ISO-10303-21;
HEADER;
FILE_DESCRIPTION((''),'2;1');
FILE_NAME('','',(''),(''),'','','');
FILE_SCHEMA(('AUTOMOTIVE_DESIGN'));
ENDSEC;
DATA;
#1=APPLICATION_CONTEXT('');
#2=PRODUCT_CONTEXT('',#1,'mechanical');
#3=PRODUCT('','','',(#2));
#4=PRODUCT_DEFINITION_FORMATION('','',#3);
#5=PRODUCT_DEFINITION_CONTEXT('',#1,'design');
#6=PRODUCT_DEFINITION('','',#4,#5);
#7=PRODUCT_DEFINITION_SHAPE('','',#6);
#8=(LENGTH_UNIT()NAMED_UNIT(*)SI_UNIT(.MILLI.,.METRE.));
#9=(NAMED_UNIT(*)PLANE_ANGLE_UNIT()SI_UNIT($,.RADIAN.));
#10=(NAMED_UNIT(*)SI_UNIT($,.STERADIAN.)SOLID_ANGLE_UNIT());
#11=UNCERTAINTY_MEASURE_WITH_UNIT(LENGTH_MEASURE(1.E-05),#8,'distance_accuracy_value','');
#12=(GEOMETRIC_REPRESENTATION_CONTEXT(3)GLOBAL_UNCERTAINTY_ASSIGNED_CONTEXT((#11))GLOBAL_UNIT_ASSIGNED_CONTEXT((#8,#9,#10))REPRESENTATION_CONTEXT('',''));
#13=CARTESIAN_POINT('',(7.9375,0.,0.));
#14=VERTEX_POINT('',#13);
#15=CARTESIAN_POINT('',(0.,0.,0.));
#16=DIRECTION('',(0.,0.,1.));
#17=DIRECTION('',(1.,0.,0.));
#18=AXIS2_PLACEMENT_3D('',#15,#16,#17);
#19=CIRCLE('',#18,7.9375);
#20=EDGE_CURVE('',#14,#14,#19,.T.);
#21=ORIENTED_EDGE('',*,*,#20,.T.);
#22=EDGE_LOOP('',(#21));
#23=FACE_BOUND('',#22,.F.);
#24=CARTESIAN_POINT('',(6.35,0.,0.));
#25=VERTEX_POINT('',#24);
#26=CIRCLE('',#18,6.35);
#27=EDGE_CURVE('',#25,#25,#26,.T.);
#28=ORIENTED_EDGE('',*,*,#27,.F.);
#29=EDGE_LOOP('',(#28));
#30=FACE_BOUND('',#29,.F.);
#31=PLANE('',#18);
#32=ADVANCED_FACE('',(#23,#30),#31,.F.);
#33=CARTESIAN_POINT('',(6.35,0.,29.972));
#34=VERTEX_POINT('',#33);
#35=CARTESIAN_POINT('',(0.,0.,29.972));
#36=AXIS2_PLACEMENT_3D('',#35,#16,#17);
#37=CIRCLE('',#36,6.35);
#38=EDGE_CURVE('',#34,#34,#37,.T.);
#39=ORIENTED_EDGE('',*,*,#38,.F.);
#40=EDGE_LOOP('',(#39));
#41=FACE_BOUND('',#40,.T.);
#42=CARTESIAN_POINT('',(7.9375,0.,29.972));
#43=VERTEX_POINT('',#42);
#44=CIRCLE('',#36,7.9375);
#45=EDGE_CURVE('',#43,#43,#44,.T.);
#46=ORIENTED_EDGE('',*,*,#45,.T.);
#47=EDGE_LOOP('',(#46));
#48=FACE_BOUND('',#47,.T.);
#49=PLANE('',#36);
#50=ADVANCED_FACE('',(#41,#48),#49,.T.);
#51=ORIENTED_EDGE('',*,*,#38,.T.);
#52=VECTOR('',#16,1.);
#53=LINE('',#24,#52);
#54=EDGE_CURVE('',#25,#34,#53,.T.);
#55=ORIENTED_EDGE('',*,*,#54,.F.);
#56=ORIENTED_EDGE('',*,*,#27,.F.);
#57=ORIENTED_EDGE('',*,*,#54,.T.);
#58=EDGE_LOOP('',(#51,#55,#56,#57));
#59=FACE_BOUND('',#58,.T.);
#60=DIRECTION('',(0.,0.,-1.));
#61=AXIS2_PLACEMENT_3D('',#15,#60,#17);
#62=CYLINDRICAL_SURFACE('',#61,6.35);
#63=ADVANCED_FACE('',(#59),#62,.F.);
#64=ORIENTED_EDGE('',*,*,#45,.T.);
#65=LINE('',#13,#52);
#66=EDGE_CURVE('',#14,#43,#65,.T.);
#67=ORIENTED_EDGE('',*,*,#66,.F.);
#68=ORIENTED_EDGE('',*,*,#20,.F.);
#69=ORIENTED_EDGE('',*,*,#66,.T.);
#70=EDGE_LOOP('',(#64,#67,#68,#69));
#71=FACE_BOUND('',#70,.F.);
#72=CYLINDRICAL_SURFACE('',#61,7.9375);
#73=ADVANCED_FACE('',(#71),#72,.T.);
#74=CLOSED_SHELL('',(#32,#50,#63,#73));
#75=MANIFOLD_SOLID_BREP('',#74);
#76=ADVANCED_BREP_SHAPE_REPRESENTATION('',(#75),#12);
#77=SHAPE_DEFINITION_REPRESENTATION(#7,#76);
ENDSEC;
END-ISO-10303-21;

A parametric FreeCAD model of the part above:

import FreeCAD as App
import Part
import Sketcher

V = App.Vector
Q = App.Units.Quantity

doc = App.newDocument("Part")
params = doc.addObject("Spreadsheet::Sheet", "Params")
for row, (alias, value) in enumerate([
    ("sketch1_diameter", "0.5 in"),
    ("sketch1_diameter2", "0.625 in"),
    ("pad1_length", "1.18 in"),
], start=1):
    params.set(f"A{row}", alias)
    params.set(f"B{row}", "=" + value)
    params.setAlias(f"B{row}", alias)

body = doc.addObject("PartDesign::Body", "Body")

# Sketch on XY plane
sketch1 = doc.addObject("Sketcher::SketchObject", "Sketch")
body.addObject(sketch1)
sketch1.AttachmentSupport = (doc.XY_Plane, [""])
sketch1.MapMode = "FlatFace"
sketch1.addGeometry(Part.Circle(V(0, 0, 0), V(0, 0, 1), 8), False)
sketch1.addGeometry(Part.Circle(V(0, 0, 0), V(0, 0, 1), 6), False)
sketch1.addConstraint(Sketcher.Constraint("Coincident", 0, 3, -1, 1))
sketch1.addConstraint(Sketcher.Constraint("Coincident", 1, 3, -1, 1))
sketch1.addConstraint(Sketcher.Constraint("Diameter", 1, Q("0.5 in")))
sketch1.addConstraint(Sketcher.Constraint("Diameter", 0, Q("0.625 in")))
sketch1.setExpression("Constraints[2]", "Params.sketch1_diameter")
sketch1.setExpression("Constraints[3]", "Params.sketch1_diameter2")
pad1 = doc.addObject("PartDesign::Pad", "Pad")
body.addObject(pad1)
pad1.Profile = sketch1
pad1.setExpression("Length", "Params.pad1_length")

doc.recompute()
